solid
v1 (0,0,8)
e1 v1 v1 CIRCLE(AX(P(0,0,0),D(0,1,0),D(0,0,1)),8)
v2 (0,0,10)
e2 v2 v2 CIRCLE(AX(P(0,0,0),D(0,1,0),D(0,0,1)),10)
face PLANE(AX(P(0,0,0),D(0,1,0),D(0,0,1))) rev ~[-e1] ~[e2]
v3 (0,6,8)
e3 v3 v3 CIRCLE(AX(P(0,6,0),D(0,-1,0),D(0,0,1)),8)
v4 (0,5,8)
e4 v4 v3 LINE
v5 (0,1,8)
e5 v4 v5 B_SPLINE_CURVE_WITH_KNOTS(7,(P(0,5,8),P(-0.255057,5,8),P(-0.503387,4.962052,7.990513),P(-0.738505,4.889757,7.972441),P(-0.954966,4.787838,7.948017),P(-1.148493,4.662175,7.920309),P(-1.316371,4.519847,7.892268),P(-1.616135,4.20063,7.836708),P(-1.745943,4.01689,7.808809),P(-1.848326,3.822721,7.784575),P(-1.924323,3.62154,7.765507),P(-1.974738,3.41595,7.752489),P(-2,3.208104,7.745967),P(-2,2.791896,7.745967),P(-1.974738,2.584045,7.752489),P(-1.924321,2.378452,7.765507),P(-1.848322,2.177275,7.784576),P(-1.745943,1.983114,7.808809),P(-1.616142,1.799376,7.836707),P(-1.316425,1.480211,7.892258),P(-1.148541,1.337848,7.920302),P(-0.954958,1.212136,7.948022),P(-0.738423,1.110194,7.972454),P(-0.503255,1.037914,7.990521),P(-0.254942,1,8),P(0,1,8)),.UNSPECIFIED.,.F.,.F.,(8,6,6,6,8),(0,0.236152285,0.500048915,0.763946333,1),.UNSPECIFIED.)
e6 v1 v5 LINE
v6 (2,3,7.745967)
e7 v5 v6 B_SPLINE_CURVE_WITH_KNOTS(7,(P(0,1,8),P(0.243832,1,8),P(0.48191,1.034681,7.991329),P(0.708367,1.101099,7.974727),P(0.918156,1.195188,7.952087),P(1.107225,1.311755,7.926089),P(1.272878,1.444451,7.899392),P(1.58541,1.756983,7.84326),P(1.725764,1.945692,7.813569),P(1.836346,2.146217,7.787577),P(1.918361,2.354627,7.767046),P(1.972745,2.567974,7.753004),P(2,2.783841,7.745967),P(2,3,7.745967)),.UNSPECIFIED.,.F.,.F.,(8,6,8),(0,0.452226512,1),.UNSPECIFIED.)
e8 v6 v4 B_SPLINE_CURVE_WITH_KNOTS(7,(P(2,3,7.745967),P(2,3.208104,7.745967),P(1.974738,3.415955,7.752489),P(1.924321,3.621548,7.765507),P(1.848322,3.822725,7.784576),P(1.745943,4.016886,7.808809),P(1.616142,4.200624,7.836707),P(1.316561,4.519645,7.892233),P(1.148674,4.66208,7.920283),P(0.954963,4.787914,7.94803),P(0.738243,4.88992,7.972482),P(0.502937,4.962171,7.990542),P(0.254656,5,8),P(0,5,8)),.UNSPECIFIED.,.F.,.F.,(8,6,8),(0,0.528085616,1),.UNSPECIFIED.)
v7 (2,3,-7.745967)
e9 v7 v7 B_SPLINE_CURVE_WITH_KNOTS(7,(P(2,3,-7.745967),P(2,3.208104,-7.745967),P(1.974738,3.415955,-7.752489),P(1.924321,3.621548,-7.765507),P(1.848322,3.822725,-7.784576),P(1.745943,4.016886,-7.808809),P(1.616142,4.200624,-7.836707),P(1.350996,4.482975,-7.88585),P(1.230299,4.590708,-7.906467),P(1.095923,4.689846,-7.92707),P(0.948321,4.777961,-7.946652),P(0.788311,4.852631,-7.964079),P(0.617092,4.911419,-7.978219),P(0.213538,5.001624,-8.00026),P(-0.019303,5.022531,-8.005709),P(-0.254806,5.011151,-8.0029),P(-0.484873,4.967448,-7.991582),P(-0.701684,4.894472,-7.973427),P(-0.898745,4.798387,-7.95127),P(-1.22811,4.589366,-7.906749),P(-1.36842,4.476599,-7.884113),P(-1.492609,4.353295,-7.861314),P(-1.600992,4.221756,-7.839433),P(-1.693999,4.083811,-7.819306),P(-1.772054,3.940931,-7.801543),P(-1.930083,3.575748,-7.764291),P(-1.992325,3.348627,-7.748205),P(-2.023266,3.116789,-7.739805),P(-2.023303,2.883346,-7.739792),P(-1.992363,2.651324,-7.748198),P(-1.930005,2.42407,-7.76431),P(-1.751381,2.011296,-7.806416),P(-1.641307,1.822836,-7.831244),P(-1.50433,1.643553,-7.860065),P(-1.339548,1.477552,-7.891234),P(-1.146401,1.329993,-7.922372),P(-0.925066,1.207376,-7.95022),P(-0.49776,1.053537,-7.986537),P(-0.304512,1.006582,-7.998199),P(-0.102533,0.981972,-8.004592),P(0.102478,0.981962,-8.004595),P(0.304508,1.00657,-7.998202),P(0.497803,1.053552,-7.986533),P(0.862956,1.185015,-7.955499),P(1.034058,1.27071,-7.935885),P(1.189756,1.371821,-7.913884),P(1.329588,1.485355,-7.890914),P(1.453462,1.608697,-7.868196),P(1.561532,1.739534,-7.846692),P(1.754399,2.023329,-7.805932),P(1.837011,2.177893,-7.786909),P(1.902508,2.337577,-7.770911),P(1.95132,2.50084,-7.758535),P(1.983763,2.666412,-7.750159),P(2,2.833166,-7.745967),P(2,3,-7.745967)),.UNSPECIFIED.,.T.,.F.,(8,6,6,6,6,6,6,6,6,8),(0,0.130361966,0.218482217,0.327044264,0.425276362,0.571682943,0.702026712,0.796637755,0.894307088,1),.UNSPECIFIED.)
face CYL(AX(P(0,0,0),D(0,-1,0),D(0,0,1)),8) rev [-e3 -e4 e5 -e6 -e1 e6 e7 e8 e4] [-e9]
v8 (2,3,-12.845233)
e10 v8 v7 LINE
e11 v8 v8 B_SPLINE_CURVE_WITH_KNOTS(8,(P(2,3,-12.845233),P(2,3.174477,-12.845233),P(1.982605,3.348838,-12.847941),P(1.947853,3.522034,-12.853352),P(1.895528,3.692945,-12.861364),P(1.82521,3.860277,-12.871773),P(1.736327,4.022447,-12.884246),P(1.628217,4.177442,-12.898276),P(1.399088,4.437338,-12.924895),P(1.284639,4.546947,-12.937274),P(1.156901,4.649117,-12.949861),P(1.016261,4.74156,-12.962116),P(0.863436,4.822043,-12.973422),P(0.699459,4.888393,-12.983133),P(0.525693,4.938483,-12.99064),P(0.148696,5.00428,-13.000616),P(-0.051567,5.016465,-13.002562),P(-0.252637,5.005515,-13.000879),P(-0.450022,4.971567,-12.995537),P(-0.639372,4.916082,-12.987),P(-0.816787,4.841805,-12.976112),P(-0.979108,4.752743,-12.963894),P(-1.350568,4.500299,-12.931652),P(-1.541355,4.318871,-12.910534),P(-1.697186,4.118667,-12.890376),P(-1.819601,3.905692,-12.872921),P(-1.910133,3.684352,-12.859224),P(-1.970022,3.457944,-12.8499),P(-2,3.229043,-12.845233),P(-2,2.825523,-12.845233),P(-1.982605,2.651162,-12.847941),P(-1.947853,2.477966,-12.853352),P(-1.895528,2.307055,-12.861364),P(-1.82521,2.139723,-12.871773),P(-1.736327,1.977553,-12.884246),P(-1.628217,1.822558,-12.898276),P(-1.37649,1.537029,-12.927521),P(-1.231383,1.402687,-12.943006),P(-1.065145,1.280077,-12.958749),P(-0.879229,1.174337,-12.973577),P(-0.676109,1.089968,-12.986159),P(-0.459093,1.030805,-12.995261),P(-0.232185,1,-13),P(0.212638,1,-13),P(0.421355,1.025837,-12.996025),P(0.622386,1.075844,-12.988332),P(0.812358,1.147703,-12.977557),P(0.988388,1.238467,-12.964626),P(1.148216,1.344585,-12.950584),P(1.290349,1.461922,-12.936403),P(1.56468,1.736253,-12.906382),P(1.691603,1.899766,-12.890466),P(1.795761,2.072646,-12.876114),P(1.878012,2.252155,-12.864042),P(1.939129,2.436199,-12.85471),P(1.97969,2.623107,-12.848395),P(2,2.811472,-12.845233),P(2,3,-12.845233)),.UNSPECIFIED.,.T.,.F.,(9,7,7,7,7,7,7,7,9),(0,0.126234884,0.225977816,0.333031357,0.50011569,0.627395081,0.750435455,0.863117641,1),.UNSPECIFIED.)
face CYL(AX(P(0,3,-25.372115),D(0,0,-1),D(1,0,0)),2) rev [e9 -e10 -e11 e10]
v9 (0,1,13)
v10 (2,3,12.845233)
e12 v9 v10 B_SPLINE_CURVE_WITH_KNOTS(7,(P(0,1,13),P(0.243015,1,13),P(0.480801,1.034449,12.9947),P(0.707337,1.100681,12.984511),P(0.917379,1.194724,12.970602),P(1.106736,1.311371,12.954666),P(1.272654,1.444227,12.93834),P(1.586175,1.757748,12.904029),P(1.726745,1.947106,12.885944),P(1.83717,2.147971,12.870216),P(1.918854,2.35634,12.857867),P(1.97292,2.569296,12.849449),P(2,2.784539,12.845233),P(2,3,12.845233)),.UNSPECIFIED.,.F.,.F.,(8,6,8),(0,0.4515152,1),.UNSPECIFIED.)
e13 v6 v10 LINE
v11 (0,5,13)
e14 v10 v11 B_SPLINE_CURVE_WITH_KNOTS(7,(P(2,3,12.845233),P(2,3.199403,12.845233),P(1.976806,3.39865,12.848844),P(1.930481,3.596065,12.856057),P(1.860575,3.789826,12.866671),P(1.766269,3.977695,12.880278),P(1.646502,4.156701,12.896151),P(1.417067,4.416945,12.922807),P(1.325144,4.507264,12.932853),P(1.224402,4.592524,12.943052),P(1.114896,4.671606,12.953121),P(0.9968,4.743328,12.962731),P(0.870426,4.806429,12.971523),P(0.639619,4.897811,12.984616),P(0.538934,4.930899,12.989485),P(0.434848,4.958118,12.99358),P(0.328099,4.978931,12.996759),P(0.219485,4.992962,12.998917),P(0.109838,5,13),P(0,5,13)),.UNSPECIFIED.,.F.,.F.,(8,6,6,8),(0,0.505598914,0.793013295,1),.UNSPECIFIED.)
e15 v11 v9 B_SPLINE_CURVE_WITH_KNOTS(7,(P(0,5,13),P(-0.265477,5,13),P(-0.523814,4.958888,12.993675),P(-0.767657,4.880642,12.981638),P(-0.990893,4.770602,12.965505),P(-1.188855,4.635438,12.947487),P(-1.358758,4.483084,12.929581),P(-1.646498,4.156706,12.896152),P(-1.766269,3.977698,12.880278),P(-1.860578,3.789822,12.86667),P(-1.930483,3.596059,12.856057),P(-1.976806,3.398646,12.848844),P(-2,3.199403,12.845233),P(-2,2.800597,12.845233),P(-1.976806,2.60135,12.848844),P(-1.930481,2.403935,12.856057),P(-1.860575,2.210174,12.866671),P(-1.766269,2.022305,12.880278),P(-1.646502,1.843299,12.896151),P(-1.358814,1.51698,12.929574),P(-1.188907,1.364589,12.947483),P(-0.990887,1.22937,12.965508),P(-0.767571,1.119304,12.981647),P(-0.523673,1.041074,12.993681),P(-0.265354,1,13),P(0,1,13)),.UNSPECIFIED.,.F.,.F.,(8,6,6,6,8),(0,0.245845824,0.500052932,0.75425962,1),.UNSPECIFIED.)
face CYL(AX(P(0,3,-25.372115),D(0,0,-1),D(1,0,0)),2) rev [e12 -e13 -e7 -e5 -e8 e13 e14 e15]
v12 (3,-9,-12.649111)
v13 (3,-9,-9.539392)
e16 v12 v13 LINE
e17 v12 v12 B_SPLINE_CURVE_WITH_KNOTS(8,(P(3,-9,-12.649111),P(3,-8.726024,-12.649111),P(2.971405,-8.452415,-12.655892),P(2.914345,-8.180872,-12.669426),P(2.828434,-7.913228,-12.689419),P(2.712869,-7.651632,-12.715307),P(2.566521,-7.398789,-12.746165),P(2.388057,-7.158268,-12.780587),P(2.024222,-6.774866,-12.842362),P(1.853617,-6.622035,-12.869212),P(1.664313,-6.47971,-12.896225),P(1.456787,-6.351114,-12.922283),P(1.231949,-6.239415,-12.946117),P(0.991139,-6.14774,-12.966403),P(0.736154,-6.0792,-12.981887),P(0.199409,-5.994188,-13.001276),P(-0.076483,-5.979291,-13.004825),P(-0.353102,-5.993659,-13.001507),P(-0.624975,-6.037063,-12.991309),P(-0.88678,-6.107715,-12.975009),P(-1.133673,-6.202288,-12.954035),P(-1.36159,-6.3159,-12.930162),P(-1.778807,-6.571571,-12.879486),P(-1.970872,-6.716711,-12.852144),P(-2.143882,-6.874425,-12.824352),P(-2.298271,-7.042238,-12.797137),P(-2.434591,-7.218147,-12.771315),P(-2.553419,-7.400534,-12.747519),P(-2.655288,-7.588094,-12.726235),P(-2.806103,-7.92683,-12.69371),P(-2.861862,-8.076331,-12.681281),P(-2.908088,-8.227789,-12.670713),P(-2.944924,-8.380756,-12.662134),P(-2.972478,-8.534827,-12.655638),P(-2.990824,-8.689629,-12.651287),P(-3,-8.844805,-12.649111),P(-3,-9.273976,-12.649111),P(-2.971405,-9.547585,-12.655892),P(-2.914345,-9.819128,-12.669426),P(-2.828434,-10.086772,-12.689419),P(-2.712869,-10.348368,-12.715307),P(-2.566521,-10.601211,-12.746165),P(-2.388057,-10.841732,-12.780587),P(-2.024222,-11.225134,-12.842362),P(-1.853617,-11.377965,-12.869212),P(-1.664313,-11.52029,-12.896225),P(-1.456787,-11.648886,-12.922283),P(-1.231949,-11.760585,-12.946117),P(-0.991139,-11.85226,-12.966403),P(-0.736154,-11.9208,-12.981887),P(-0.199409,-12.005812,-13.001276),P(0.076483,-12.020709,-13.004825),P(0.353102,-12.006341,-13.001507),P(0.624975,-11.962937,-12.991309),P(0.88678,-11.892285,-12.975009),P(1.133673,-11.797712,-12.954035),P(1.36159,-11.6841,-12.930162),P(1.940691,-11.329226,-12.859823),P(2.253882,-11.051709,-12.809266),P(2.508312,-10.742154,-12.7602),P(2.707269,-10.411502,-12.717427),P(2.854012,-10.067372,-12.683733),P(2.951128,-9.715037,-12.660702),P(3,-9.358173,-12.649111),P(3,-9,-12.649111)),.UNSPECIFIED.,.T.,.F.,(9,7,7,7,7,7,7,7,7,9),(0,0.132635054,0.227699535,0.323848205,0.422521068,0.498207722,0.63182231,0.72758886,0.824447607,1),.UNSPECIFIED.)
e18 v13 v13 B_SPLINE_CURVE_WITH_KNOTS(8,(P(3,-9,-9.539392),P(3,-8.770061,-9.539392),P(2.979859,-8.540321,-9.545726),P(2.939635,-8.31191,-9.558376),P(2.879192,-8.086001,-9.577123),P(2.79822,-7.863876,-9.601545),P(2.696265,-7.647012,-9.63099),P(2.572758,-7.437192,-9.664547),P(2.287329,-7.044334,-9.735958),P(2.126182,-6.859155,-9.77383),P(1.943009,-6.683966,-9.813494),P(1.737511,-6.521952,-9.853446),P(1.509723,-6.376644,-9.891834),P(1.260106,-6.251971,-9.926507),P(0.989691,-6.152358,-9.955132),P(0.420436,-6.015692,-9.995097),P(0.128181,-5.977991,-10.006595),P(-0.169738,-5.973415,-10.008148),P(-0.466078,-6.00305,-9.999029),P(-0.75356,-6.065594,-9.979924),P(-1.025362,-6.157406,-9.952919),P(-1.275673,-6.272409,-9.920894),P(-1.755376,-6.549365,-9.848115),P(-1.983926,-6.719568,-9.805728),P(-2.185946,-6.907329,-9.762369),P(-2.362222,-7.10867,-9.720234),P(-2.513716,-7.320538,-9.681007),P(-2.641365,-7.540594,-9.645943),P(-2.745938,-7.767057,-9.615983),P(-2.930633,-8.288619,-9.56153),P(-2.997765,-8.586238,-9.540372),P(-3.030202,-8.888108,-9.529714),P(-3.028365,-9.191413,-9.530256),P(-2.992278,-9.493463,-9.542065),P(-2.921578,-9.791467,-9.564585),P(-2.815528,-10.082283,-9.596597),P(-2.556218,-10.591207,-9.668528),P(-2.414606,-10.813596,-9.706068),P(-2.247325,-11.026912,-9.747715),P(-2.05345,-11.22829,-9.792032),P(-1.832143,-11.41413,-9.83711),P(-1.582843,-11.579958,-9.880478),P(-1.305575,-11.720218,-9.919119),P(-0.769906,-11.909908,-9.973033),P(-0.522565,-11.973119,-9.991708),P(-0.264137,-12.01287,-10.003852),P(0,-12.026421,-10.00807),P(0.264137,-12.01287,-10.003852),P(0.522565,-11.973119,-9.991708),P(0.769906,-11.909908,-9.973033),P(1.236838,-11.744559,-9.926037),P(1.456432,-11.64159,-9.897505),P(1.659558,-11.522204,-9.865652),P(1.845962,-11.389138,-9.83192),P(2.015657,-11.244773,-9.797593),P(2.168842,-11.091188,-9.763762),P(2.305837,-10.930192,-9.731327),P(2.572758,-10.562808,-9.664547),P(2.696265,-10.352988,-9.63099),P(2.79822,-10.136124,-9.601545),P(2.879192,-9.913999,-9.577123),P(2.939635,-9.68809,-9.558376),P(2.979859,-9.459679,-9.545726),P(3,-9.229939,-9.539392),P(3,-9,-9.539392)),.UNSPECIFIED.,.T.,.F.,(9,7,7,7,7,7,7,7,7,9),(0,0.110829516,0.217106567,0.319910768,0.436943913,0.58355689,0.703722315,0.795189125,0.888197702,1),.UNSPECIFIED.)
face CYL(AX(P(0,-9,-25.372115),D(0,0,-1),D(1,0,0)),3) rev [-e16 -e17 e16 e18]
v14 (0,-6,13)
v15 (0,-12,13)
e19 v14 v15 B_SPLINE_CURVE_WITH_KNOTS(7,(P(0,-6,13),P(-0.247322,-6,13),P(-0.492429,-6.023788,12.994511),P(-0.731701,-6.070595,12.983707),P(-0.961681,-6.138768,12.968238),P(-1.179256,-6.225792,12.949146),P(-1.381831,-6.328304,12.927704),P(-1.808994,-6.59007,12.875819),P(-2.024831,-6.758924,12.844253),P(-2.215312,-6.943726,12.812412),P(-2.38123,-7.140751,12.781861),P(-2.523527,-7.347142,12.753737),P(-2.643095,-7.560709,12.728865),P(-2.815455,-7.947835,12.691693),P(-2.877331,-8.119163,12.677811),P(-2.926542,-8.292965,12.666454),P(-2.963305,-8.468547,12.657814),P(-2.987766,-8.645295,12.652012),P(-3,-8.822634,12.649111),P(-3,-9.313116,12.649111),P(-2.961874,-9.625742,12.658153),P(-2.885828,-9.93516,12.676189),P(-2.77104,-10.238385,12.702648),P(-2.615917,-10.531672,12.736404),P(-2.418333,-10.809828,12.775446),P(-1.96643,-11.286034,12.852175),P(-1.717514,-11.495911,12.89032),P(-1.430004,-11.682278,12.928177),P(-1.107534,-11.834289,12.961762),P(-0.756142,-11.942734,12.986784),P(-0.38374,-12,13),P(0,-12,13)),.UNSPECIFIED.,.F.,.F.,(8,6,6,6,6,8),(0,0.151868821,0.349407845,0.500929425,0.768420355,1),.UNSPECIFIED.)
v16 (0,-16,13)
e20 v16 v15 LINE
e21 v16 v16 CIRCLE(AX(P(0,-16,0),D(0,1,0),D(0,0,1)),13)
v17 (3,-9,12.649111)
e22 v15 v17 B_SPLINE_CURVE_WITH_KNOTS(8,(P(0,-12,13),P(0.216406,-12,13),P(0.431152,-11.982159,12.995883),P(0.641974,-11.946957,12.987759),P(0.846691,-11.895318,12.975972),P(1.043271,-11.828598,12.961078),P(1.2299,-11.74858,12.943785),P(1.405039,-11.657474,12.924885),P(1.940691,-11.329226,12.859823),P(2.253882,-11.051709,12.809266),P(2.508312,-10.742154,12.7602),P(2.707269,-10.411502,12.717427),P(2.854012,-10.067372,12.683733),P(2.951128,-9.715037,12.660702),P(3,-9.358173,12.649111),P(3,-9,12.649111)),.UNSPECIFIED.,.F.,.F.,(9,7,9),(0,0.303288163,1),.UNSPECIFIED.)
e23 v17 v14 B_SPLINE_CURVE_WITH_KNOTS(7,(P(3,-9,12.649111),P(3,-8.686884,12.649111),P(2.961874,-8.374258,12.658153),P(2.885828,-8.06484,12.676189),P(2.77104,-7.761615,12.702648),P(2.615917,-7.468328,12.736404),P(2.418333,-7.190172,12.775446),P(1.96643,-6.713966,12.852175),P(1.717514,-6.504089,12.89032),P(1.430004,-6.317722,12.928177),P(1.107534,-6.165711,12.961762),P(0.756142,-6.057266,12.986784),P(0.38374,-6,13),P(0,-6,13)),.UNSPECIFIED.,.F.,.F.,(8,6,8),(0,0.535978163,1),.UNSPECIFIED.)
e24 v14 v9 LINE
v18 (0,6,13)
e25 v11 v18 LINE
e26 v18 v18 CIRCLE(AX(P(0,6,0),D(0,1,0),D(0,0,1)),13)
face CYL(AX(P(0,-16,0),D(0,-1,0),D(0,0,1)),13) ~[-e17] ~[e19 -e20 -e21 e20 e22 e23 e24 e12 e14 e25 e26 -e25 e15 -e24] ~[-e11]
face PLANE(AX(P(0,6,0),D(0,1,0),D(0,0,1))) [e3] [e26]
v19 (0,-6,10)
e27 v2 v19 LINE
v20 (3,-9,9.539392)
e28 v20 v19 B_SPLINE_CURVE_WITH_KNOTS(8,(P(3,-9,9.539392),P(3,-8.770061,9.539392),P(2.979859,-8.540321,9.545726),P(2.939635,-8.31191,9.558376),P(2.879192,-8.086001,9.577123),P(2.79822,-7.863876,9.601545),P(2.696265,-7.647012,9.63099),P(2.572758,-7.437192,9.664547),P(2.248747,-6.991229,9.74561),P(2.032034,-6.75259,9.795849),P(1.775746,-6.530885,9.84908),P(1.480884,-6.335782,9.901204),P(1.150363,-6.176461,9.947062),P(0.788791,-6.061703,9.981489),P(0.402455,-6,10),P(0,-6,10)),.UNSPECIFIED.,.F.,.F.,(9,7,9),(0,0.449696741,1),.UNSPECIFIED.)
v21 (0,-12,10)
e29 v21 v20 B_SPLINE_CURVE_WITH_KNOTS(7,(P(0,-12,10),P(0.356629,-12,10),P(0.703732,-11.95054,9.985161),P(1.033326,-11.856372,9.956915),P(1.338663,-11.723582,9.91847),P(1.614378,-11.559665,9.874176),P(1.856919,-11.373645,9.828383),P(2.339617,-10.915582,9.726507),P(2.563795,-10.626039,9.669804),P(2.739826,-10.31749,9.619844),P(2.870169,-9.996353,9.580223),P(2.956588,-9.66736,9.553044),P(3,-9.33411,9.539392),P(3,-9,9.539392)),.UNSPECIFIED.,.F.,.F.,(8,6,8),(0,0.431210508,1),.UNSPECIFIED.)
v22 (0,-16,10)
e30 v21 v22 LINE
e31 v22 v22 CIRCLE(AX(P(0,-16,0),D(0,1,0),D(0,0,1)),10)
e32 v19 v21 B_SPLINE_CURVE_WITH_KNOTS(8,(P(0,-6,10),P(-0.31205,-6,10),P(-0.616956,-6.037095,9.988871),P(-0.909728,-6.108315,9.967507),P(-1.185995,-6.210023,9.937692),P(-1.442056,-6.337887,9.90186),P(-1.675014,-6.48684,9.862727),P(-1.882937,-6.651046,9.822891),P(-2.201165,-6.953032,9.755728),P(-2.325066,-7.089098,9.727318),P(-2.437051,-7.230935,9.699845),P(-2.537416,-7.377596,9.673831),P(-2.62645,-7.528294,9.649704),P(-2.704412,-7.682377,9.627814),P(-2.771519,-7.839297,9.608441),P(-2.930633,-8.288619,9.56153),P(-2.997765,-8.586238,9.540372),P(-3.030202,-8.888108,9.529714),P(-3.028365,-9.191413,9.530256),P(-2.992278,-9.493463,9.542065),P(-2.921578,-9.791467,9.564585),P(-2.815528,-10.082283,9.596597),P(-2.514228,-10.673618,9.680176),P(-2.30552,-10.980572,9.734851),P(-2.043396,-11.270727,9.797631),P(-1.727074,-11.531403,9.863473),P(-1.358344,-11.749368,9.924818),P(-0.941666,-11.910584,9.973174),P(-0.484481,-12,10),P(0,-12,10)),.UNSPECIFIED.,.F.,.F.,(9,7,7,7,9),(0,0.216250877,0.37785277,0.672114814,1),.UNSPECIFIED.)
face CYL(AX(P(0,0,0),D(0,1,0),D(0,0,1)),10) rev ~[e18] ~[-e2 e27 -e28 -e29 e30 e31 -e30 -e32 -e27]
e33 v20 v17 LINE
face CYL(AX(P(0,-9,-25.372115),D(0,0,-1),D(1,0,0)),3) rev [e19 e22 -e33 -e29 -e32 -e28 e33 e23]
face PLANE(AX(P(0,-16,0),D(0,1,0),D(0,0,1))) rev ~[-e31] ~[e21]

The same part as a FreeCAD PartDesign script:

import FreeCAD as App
import Part
import Sketcher

V = App.Vector

doc = App.newDocument("Part")
body = doc.addObject("PartDesign::Body", "Body")

# Sketch on XZ plane
sketch1 = body.newObject("Sketcher::SketchObject", "Sketch")
sketch1.AttachmentSupport = (doc.getObject("XZ_Plane"), [""])
sketch1.MapMode = "FlatFace"
sketch1.AttachmentOffset = App.Placement(V(0, 0, 16), App.Rotation())
sketch1.addGeometry(Part.Circle(V(0, 0, 0), V(0, 0, 1), 13), False)
sketch1.addConstraint([
    Sketcher.Constraint("Coincident", 0, 3, -1, 1),
    Sketcher.Constraint("Diameter", 0, 26.0),
])
pad1 = body.newObject("PartDesign::Pad", "Pad")
pad1.Profile = sketch1
pad1.Length = 22
pad1.Reversed = True

# Sketch on XZ plane
sketch2 = body.newObject("Sketcher::SketchObject", "Sketch001")
sketch2.AttachmentSupport = (doc.getObject("XZ_Plane"), [""])
sketch2.MapMode = "FlatFace"
sketch2.addGeometry(Part.Circle(V(0, 0, 0), V(0, 0, 1), 8), False)
sketch2.addConstraint([
    Sketcher.Constraint("Coincident", 0, 3, -1, 1),
    Sketcher.Constraint("Diameter", 0, 16.0),
])
pocket1 = body.newObject("PartDesign::Pocket", "Pocket")
pocket1.Profile = sketch2
pocket1.Type = "UpToFirst"

# Sketch on XZ plane
sketch3 = body.newObject("Sketcher::SketchObject", "Sketch002")
sketch3.AttachmentSupport = (doc.getObject("XZ_Plane"), [""])
sketch3.MapMode = "FlatFace"
sketch3.addGeometry(Part.Circle(V(0, 0, 0), V(0, 0, 1), 10), False)
sketch3.addConstraint([
    Sketcher.Constraint("Coincident", 0, 3, -1, 1),
    Sketcher.Constraint("Diameter", 0, 20.0),
])
pocket2 = body.newObject("PartDesign::Pocket", "Pocket001")
pocket2.Profile = sketch3
pocket2.Type = "UpToFirst"
pocket2.Reversed = True

# Sketch on XY plane
sketch4 = body.newObject("Sketcher::SketchObject", "Sketch003")
sketch4.AttachmentSupport = (doc.getObject("XY_Plane"), [""])
sketch4.MapMode = "FlatFace"
sketch4.addGeometry([
    Part.Circle(V(0, -9, 0), V(0, 0, 1), 3),
    Part.Circle(V(0, 3, 0), V(0, 0, 1), 2),
], False)
sketch4.addConstraint([
    Sketcher.Constraint("PointOnObject", 0, 3, -2),
    Sketcher.Constraint("PointOnObject", 1, 3, -2),
    Sketcher.Constraint("Diameter", 0, 6.0),
    Sketcher.Constraint("Diameter", 1, 4.0),
    Sketcher.Constraint("DistanceY", 0, 3, -1, 1, 9.0),
    Sketcher.Constraint("DistanceY", -1, 1, 1, 3, 3.0),
])
pocket3 = body.newObject("PartDesign::Pocket", "Pocket002")
pocket3.Profile = sketch4
pocket3.Type = "ThroughAll"
pocket3.Midplane = True

doc.recompute()
